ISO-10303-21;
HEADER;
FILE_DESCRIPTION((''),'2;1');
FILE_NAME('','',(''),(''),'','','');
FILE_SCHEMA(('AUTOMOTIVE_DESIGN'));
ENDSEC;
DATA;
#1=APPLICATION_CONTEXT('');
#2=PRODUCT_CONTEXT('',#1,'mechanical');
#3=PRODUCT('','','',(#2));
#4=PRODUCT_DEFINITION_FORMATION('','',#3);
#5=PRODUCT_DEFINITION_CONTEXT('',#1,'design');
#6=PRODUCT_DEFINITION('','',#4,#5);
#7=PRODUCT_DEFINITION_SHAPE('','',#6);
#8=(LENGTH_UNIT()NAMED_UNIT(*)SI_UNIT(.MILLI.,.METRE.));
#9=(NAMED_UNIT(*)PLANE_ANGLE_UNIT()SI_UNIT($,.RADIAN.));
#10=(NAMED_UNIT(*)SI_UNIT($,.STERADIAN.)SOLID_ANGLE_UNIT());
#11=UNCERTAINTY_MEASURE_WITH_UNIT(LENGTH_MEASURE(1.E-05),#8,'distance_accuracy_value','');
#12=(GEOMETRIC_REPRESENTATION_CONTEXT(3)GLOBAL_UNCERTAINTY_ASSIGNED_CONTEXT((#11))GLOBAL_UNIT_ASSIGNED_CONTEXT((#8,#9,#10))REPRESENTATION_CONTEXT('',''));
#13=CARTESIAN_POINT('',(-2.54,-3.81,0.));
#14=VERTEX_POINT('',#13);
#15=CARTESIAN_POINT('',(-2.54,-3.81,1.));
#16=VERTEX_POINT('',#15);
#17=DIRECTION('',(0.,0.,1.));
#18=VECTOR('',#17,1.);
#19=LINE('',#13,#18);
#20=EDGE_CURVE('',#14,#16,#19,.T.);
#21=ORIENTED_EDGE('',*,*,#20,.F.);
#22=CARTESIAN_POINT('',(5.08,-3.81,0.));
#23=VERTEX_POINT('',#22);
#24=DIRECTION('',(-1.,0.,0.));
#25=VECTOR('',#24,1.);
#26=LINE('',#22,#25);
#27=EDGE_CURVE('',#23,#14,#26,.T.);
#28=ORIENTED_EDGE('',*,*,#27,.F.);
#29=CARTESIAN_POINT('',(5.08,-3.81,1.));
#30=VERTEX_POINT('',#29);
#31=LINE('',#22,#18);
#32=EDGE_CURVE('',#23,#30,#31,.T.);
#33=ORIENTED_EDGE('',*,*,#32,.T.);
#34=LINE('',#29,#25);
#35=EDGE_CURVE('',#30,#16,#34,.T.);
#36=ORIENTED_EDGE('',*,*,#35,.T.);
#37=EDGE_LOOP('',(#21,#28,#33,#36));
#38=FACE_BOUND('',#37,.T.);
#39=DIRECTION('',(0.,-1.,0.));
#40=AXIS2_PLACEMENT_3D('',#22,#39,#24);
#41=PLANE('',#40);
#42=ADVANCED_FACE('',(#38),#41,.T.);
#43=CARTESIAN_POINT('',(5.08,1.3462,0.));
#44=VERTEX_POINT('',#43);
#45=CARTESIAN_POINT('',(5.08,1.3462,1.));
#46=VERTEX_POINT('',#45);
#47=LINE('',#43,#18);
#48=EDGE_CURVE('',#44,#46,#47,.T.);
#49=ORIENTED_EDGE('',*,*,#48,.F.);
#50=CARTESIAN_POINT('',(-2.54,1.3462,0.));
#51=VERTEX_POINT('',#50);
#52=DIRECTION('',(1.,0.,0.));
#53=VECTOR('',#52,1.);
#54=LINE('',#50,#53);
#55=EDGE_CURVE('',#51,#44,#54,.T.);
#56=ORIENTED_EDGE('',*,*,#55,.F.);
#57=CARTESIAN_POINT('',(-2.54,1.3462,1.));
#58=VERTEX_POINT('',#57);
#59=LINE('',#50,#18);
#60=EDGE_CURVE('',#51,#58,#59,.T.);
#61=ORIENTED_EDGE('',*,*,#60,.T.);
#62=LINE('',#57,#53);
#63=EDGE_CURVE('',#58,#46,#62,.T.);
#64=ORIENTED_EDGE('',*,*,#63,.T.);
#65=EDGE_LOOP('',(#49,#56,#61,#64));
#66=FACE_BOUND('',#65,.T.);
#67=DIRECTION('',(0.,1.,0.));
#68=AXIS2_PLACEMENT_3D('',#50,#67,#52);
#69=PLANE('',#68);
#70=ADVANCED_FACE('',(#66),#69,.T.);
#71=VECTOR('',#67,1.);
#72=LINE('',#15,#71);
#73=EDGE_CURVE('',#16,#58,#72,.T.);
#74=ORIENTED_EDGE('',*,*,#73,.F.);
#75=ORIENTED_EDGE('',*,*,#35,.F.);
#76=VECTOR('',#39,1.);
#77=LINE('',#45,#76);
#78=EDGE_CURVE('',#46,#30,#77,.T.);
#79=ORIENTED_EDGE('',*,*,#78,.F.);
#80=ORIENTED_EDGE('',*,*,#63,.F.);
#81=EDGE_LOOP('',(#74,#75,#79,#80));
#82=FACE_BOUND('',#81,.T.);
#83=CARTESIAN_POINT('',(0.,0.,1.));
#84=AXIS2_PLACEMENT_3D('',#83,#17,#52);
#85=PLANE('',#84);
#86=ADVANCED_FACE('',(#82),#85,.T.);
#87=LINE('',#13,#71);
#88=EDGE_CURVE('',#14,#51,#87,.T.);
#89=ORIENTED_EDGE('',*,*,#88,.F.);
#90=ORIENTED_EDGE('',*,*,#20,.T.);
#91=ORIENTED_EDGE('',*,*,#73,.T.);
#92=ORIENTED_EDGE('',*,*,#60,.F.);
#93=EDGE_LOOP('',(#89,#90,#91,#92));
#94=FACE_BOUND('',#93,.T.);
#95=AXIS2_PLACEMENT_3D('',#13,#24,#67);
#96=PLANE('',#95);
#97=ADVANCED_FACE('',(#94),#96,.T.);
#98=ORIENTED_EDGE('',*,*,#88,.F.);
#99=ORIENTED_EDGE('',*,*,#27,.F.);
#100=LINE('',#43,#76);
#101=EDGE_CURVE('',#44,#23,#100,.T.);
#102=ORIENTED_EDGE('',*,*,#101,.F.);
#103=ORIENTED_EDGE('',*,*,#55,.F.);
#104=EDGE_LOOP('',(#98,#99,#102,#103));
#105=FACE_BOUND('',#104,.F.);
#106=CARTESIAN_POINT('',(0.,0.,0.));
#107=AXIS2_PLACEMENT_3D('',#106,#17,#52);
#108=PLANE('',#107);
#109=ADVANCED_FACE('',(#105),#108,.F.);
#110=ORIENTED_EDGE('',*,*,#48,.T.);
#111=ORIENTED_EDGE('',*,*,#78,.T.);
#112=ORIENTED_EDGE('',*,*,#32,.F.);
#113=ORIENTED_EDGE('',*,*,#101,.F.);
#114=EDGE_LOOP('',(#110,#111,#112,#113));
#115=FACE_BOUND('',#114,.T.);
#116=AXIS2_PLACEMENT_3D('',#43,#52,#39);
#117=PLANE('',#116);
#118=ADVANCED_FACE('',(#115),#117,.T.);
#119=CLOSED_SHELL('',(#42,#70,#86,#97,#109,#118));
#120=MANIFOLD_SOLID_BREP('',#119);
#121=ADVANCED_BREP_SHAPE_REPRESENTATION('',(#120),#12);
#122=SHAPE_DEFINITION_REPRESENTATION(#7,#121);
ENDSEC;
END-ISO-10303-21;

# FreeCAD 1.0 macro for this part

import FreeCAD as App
import Part
import Sketcher
Q = App.Units.Quantity

doc = App.newDocument("Part")
body = doc.addObject("PartDesign::Body", "Body")

sketch1 = body.newObject("Sketcher::SketchObject", "Sketch")
sketch1.AttachmentSupport = (doc.getObject("XY_Plane"), [""])
sketch1.MapMode = "FlatFace"
sketch1.addGeometry([
    Part.LineSegment(App.Vector(5.08, 1.3462, 0), App.Vector(-2.54, 1.3462, 0)),
    Part.LineSegment(App.Vector(-2.54, 1.3462, 0), App.Vector(-2.54, -3.81, 0)),
    Part.LineSegment(App.Vector(-2.54, -3.81, 0), App.Vector(5.08, -3.81, 0)),
    Part.LineSegment(App.Vector(5.08, -3.81, 0), App.Vector(5.08, 1.3462, 0)),
], False)
sketch1.addConstraint([
    Sketcher.Constraint("Coincident", 0, 2, 1, 1),
    Sketcher.Constraint("Coincident", 1, 2, 2, 1),
    Sketcher.Constraint("Coincident", 2, 2, 3, 1),
    Sketcher.Constraint("Coincident", 3, 2, 0, 1),
    Sketcher.Constraint("Horizontal", 0),
    Sketcher.Constraint("Vertical", 1),
    Sketcher.Constraint("Horizontal", 2),
    Sketcher.Constraint("Vertical", 3),
    Sketcher.Constraint("DistanceX", 0, 2, 0, 1, Q("0.3 in")),
    Sketcher.Constraint("DistanceX", 0, 2, -1, 1, Q("0.1 in")),
    Sketcher.Constraint("DistanceY", 1, 2, 1, 1, Q("0.203 in")),
    Sketcher.Constraint("DistanceY", 1, 2, -1, 1, Q("0.15 in")),
])
pad1 = body.newObject("PartDesign::Pad", "Pad")
pad1.Profile = sketch1
pad1.Length = 1

doc.recompute()
